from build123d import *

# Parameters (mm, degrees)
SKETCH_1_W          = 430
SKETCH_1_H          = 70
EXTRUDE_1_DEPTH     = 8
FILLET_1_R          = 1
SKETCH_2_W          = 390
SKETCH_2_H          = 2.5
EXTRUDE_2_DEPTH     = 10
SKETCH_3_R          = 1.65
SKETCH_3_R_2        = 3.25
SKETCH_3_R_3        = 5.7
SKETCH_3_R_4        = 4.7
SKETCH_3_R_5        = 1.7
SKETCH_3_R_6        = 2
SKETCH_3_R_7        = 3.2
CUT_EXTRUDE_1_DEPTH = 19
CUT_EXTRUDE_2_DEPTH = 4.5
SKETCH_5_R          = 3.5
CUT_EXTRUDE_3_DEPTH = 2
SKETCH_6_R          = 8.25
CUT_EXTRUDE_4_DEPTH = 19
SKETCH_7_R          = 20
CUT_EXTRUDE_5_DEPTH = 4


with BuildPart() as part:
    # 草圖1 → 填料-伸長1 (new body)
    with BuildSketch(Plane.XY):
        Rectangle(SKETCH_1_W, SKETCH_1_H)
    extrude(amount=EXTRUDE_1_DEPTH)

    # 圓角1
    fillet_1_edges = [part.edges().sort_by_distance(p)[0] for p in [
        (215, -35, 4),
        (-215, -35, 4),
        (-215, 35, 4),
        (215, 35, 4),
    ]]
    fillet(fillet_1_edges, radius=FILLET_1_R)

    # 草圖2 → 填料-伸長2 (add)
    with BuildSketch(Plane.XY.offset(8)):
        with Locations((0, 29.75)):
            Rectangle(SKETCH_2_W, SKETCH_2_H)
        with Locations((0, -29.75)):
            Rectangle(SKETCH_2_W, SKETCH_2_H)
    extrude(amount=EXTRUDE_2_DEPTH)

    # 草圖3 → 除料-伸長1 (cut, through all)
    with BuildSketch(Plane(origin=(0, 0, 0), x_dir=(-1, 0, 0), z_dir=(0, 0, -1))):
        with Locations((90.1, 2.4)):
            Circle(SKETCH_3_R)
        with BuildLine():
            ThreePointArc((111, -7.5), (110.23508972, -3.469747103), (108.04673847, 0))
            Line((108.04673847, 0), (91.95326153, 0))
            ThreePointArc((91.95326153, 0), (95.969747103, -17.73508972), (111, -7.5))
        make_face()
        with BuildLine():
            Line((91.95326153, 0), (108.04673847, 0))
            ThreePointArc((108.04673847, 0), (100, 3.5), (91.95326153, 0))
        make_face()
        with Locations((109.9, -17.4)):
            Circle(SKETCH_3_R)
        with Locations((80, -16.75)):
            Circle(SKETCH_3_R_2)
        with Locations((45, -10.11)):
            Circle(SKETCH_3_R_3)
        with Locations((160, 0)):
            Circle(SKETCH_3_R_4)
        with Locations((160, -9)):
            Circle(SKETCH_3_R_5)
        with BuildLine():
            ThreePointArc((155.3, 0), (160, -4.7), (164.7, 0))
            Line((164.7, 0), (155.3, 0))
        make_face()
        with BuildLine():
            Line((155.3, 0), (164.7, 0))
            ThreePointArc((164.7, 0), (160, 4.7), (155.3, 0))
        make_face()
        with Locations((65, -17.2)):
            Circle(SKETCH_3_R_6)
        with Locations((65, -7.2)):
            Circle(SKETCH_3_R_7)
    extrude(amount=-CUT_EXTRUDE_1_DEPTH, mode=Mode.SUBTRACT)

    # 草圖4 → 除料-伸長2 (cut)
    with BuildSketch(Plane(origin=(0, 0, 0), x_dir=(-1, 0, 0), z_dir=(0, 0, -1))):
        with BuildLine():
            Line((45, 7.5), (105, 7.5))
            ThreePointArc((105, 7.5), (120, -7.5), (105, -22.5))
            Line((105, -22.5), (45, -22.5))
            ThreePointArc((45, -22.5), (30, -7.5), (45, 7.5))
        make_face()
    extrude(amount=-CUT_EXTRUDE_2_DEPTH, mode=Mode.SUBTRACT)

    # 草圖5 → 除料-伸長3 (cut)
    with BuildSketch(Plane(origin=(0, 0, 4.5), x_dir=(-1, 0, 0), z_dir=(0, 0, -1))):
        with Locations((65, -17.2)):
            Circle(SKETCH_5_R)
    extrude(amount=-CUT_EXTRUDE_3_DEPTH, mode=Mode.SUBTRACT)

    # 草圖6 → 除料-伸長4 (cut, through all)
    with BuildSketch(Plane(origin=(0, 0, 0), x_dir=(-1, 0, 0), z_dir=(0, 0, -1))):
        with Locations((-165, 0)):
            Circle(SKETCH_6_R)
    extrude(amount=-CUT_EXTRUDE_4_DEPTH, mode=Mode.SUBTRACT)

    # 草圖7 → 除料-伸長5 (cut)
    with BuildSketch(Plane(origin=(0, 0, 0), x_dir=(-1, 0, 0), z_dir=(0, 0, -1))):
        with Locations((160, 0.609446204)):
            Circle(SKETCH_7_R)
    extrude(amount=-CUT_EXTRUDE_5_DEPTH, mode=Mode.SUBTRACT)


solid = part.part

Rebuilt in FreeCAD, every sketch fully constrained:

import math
import FreeCAD as App
import Part
import Sketcher
from FreeCAD import Vector
Q = App.Units.Quantity


def edges_at(feature, points):
    """Names of the edges that pass closest to the given points."""
    edges = feature.Shape.Edges
    near = lambda p: min(range(len(edges)), key=lambda i: edges[i].distToShape(Part.Vertex(*p))[0])
    return sorted({f"Edge{near(p) + 1}" for p in points})

doc = App.newDocument("Part")
body = doc.addObject("PartDesign::Body", "Body")

# Sketch on XY plane
sketch1 = body.newObject("Sketcher::SketchObject", "Sketch")
sketch1.AttachmentSupport = (doc.getObject("XY_Plane"), [""])
sketch1.MapMode = "FlatFace"
sketch1.addGeometry([
    Part.LineSegment(Vector(-215, 35, 0), Vector(-215, -35, 0)),
    Part.LineSegment(Vector(-215, -35, 0), Vector(215, -35, 0)),
    Part.LineSegment(Vector(215, -35, 0), Vector(215, 35, 0)),
    Part.LineSegment(Vector(215, 35, 0), Vector(-215, 35, 0)),
], False)
sketch1.addConstraint([
    Sketcher.Constraint("Coincident", 0, 2, 1, 1),
    Sketcher.Constraint("Coincident", 1, 2, 2, 1),
    Sketcher.Constraint("Coincident", 2, 2, 3, 1),
    Sketcher.Constraint("Coincident", 3, 2, 0, 1),
    Sketcher.Constraint("Vertical", 0),
    Sketcher.Constraint("Horizontal", 1),
    Sketcher.Constraint("Vertical", 2),
    Sketcher.Constraint("Horizontal", 3),
    Sketcher.Constraint("Symmetric", 0, 2, 2, 2, -1, 1),
    Sketcher.Constraint("DistanceX", 1, 1, 1, 2, Q("430 mm")),
    Sketcher.Constraint("DistanceY", 0, 2, 0, 1, Q("70 mm")),
])
pad1 = body.newObject("PartDesign::Pad", "Pad")
pad1.Profile = sketch1
pad1.Length = 8
doc.recompute()

fillet = body.newObject("PartDesign::Fillet", "Fillet")
fillet.Base = (pad1, edges_at(pad1, [
    (215, -35, 4),
    (-215, -35, 4),
    (-215, 35, 4),
    (215, 35, 4),
]))
fillet.Radius = 1

# Sketch on XY plane
sketch2 = body.newObject("Sketcher::SketchObject", "Sketch001")
sketch2.AttachmentSupport = (doc.getObject("XY_Plane"), [""])
sketch2.MapMode = "FlatFace"
sketch2.AttachmentOffset = App.Placement(Vector(0, 0, 8), App.Rotation())
sketch2.addGeometry([
    Part.LineSegment(Vector(-195, 31, 0), Vector(-195, 28.5, 0)),  # 0
    Part.LineSegment(Vector(-195, 28.5, 0), Vector(195, 28.5, 0)),  # 1
    Part.LineSegment(Vector(195, 28.5, 0), Vector(195, 31, 0)),  # 2
    Part.LineSegment(Vector(195, 31, 0), Vector(-195, 31, 0)),  # 3
    Part.LineSegment(Vector(-195, -28.5, 0), Vector(-195, -31, 0)),  # 4
    Part.LineSegment(Vector(-195, -31, 0), Vector(195, -31, 0)),  # 5
    Part.LineSegment(Vector(195, -31, 0), Vector(195, -28.5, 0)),  # 6
    Part.LineSegment(Vector(195, -28.5, 0), Vector(-195, -28.5, 0)),  # 7
], False)
sketch2.addConstraint([
    Sketcher.Constraint("Coincident", 0, 2, 1, 1),
    Sketcher.Constraint("Coincident", 1, 2, 2, 1),
    Sketcher.Constraint("Coincident", 2, 2, 3, 1),
    Sketcher.Constraint("Coincident", 3, 2, 0, 1),
    Sketcher.Constraint("Coincident", 4, 2, 5, 1),
    Sketcher.Constraint("Coincident", 5, 2, 6, 1),
    Sketcher.Constraint("Coincident", 6, 2, 7, 1),
    Sketcher.Constraint("Coincident", 7, 2, 4, 1),
    Sketcher.Constraint("Vertical", 0),
    Sketcher.Constraint("Horizontal", 1),
    Sketcher.Constraint("Vertical", 2),
    Sketcher.Constraint("Horizontal", 3),
    Sketcher.Constraint("Vertical", 4),
    Sketcher.Constraint("Horizontal", 5),
    Sketcher.Constraint("Vertical", 6),
    Sketcher.Constraint("Horizontal", 7),
    Sketcher.Constraint("Symmetric", 2, 2, 4, 2, -1, 1),
    Sketcher.Constraint("Symmetric", 0, 2, 6, 2, -1, 1),
    Sketcher.Constraint("Vertical", 3, 2, 4, 2),
    Sketcher.Constraint("DistanceX", 1, 1, 1, 2, Q("390 mm")),
    Sketcher.Constraint("DistanceY", 0, 2, 0, 1, Q("2.5 mm")),
    Sketcher.Constraint("DistanceY", -1, 1, 2, 2, Q("31 mm")),
])
pad2 = body.newObject("PartDesign::Pad", "Pad001")
pad2.Profile = sketch2
pad2.Length = 10

# Sketch on XY plane
sketch3 = body.newObject("Sketcher::SketchObject", "Sketch002")
sketch3.AttachmentSupport = (doc.getObject("XY_Plane"), [""])
sketch3.MapMode = "FlatFace"
sketch3.addGeometry([
    Part.Circle(Vector(-90.1, 2.4, 0), Vector(0, 0, 1), 1.65),  # 0
    Part.ArcOfCircle(Part.Circle(Vector(-100, -7.5, 0), Vector(0, 0, 1), 11), math.radians(137.014114), math.radians(180)),  # 1
    Part.ArcOfCircle(Part.Circle(Vector(-100, -7.5, 0), Vector(0, 0, 1), 11), math.radians(42.985886), math.radians(137.014114)),  # 2
    Part.ArcOfCircle(Part.Circle(Vector(-100, -7.5, 0), Vector(0, 0, 1), 11), math.radians(180), math.radians(402.985886)),  # 3
    Part.Circle(Vector(-109.9, -17.4, 0), Vector(0, 0, 1), 1.65),  # 4
    Part.Circle(Vector(-80, -16.75, 0), Vector(0, 0, 1), 3.25),  # 5
    Part.Circle(Vector(-45, -10.11, 0), Vector(0, 0, 1), 5.7),  # 6
    Part.Circle(Vector(-160, 0, 0), Vector(0, 0, 1), 4.7),  # 7
    Part.Circle(Vector(-160, -9, 0), Vector(0, 0, 1), 1.7),  # 8
    Part.Circle(Vector(-65, -17.2, 0), Vector(0, 0, 1), 2),  # 9
    Part.Circle(Vector(-65, -7.2, 0), Vector(0, 0, 1), 3.2),  # 10
], False)
sketch3.addConstraint([
    Sketcher.Constraint("Tangent", 1, 1, 2, 2),
    Sketcher.Constraint("Tangent", 2, 1, 3, 2),
    Sketcher.Constraint("Tangent", 3, 1, 1, 2),
    Sketcher.Constraint("Equal", 0, 4),
    Sketcher.Constraint("PointOnObject", 7, 3, -1),
    Sketcher.Constraint("PointOnObject", 1, 1, -1),
    Sketcher.Constraint("PointOnObject", 2, 1, -1),
    Sketcher.Constraint("Horizontal", 2, 3, 3, 1),
    Sketcher.Constraint("Vertical", 7, 3, 8, 3),
    Sketcher.Constraint("Vertical", 9, 3, 10, 3),
    Sketcher.Constraint("Diameter", 9, Q("4 mm")),
    Sketcher.Constraint("Radius", 1, Q("11 mm")),
    Sketcher.Constraint("Diameter", 0, Q("3.3 mm")),
    Sketcher.Constraint("Diameter", 5, Q("6.5 mm")),
    Sketcher.Constraint("Diameter", 6, Q("11.4 mm")),
    Sketcher.Constraint("Diameter", 7, Q("9.4 mm")),
    Sketcher.Constraint("Diameter", 8, Q("3.4 mm")),
    Sketcher.Constraint("Diameter", 10, Q("6.4 mm")),
    Sketcher.Constraint("DistanceX", 1, 3, -1, 1, Q("100 mm")),
    Sketcher.Constraint("DistanceX", 5, 3, -1, 1, Q("80 mm")),
    Sketcher.Constraint("DistanceX", 6, 3, -1, 1, Q("45 mm")),
    Sketcher.Constraint("DistanceX", 7, 3, -1, 1, Q("160 mm")),
    Sketcher.Constraint("DistanceY", 8, 3, -1, 1, Q("9 mm")),
    Sketcher.Constraint("DistanceX", 9, 3, -1, 1, Q("65 mm")),
    Sketcher.Constraint("DistanceY", 9, 3, 10, 3, Q("10 mm")),
    Sketcher.Constraint("DistanceX", 0, 3, -1, 1, Q("90.1 mm")),
    Sketcher.Constraint("DistanceY", -1, 1, 0, 3, Q("2.4 mm")),
    Sketcher.Constraint("DistanceY", 1, 3, -1, 1, Q("7.5 mm")),
    Sketcher.Constraint("DistanceX", 4, 3, -1, 1, Q("109.9 mm")),
    Sketcher.Constraint("DistanceY", 4, 3, -1, 1, Q("17.4 mm")),
    Sketcher.Constraint("DistanceY", 9, 3, -1, 1, Q("17.2 mm")),
    Sketcher.Constraint("DistanceY", 5, 3, -1, 1, Q("16.75 mm")),
    Sketcher.Constraint("DistanceY", 6, 3, -1, 1, Q("10.11 mm")),
])
pocket1 = body.newObject("PartDesign::Pocket", "Pocket")
pocket1.Profile = sketch3
pocket1.Type = "ThroughAll"
pocket1.Reversed = True

# Sketch on XY plane
sketch4 = body.newObject("Sketcher::SketchObject", "Sketch003")
sketch4.AttachmentSupport = (doc.getObject("XY_Plane"), [""])
sketch4.MapMode = "FlatFace"
sketch4.addGeometry([
    Part.LineSegment(Vector(-105, 7.5, 0), Vector(-45, 7.5, 0)),
    Part.ArcOfCircle(Part.Circle(Vector(-45, -7.5, 0), Vector(0, 0, 1), 15), math.radians(-90), math.radians(90)),
    Part.LineSegment(Vector(-45, -22.5, 0), Vector(-105, -22.5, 0)),
    Part.ArcOfCircle(Part.Circle(Vector(-105, -7.5, 0), Vector(0, 0, 1), 15), math.radians(90), math.radians(270)),
], False)
sketch4.addConstraint([
    Sketcher.Constraint("Tangent", 0, 2, 1, 2),
    Sketcher.Constraint("Tangent", 1, 1, 2, 1),
    Sketcher.Constraint("Tangent", 2, 2, 3, 2),
    Sketcher.Constraint("Tangent", 3, 1, 0, 1),
    Sketcher.Constraint("Horizontal", 0),
    Sketcher.Constraint("Horizontal", 2),
    Sketcher.Constraint("Radius", 1, Q("15 mm")),
    Sketcher.Constraint("DistanceX", 0, 1, 0, 2, Q("60 mm")),
    Sketcher.Constraint("DistanceX", 1, 3, -1, 1, Q("45 mm")),
    Sketcher.Constraint("DistanceY", 1, 3, -1, 1, Q("7.5 mm")),
])
pocket2 = body.newObject("PartDesign::Pocket", "Pocket001")
pocket2.Profile = sketch4
pocket2.Length = 4.5
pocket2.Reversed = True

# Sketch on XY plane
sketch5 = body.newObject("Sketcher::SketchObject", "Sketch004")
sketch5.AttachmentSupport = (doc.getObject("XY_Plane"), [""])
sketch5.MapMode = "FlatFace"
sketch5.AttachmentOffset = App.Placement(Vector(0, 0, 4.5), App.Rotation())
sketch5.addGeometry(Part.Circle(Vector(-65, -17.2, 0), Vector(0, 0, 1), 3.5), False)
sketch5.addConstraint([
    Sketcher.Constraint("Diameter", 0, Q("7 mm")),
    Sketcher.Constraint("DistanceX", 0, 3, -1, 1, Q("65 mm")),
    Sketcher.Constraint("DistanceY", 0, 3, -1, 1, Q("17.2 mm")),
])
pocket3 = body.newObject("PartDesign::Pocket", "Pocket002")
pocket3.Profile = sketch5
pocket3.Length = 2
pocket3.Reversed = True

# Sketch on XY plane
sketch6 = body.newObject("Sketcher::SketchObject", "Sketch005")
sketch6.AttachmentSupport = (doc.getObject("XY_Plane"), [""])
sketch6.MapMode = "FlatFace"
sketch6.addGeometry(Part.Circle(Vector(165, 0, 0), Vector(0, 0, 1), 8.25), False)
sketch6.addConstraint([
    Sketcher.Constraint("PointOnObject", 0, 3, -1),
    Sketcher.Constraint("Diameter", 0, Q("16.5 mm")),
    Sketcher.Constraint("DistanceX", -1, 1, 0, 3, Q("165 mm")),
])
pocket4 = body.newObject("PartDesign::Pocket", "Pocket003")
pocket4.Profile = sketch6
pocket4.Type = "ThroughAll"
pocket4.Reversed = True

# Sketch on XY plane
sketch7 = body.newObject("Sketcher::SketchObject", "Sketch006")
sketch7.AttachmentSupport = (doc.getObject("XY_Plane"), [""])
sketch7.MapMode = "FlatFace"
sketch7.addGeometry(Part.Circle(Vector(-160, 0.609446, 0), Vector(0, 0, 1), 20), False)
sketch7.addConstraint([
    Sketcher.Constraint("Diameter", 0, Q("40 mm")),
    Sketcher.Constraint("DistanceX", 0, 3, -1, 1, Q("160 mm")),
    Sketcher.Constraint("DistanceY", -1, 1, 0, 3, Q("0.609446 mm")),
])
pocket5 = body.newObject("PartDesign::Pocket", "Pocket004")
pocket5.Profile = sketch7
pocket5.Length = 4
pocket5.Reversed = True

doc.recompute()
